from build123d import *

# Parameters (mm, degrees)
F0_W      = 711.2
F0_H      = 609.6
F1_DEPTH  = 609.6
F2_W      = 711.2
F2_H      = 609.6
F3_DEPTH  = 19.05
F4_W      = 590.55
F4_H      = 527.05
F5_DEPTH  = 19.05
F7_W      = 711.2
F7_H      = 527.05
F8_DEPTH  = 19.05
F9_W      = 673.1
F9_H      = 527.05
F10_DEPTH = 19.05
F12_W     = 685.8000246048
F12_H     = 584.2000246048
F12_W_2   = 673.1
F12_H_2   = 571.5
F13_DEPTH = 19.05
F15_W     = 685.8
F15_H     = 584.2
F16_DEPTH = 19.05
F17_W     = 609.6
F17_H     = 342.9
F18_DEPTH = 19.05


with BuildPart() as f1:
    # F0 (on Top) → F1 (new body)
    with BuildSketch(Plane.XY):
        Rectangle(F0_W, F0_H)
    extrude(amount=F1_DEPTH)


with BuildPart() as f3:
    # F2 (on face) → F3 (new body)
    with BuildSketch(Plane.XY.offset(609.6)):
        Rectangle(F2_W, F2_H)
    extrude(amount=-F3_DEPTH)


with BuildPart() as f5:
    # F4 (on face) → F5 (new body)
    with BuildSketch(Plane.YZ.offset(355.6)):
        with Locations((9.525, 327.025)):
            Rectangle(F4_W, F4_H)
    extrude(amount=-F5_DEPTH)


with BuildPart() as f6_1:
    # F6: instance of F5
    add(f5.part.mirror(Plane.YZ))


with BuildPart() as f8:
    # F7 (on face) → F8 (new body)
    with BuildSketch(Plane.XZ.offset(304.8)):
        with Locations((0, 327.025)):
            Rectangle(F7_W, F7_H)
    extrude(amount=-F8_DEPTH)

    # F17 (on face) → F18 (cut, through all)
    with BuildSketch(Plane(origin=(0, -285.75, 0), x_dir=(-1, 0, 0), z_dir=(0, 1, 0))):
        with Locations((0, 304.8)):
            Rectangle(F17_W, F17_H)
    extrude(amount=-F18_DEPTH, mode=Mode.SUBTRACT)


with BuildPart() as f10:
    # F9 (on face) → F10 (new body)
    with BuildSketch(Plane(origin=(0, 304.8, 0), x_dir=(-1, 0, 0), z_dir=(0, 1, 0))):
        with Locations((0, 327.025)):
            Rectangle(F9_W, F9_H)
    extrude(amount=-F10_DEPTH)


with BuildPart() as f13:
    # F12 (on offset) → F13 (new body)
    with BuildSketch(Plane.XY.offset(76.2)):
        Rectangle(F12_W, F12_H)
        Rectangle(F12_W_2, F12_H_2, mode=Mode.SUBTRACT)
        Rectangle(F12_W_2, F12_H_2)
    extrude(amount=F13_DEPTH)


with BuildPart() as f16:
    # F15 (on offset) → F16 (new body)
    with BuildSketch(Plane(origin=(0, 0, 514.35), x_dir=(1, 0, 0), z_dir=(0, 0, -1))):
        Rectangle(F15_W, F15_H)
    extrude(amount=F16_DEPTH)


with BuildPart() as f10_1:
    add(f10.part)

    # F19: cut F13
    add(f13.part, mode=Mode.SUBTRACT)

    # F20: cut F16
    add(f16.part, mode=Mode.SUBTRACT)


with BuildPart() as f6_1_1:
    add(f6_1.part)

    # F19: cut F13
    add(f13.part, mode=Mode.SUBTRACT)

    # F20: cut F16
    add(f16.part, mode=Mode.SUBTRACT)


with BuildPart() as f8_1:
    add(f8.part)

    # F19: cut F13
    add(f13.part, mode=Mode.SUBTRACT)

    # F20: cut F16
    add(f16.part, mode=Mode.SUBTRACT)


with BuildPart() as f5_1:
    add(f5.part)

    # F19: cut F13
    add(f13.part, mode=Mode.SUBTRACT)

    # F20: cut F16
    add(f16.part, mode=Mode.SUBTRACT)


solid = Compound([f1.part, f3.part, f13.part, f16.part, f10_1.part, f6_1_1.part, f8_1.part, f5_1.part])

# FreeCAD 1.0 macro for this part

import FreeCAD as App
import Part
import Sketcher
from FreeCAD import Vector
Q = App.Units.Quantity

doc = App.newDocument("Part")
body = doc.addObject("PartDesign::Body", "Body")

# Sketch on XY plane
sketch1 = doc.addObject("Sketcher::SketchObject", "Sketch")
body.addObject(sketch1)
sketch1.AttachmentSupport = (doc.XY_Plane, [""])
sketch1.MapMode = "FlatFace"
sketch1.addGeometry(Part.LineSegment(Vector(-355.6, 304.8, 0), Vector(-355.6, -304.8, 0)), False)
sketch1.addGeometry(Part.LineSegment(Vector(-355.6, -304.8, 0), Vector(355.6, -304.8, 0)), False)
sketch1.addGeometry(Part.LineSegment(Vector(355.6, -304.8, 0), Vector(355.6, 304.8, 0)), False)
sketch1.addGeometry(Part.LineSegment(Vector(355.6, 304.8, 0), Vector(-355.6, 304.8, 0)), False)
sketch1.addConstraint(Sketcher.Constraint("Coincident", 0, 2, 1, 1))
sketch1.addConstraint(Sketcher.Constraint("Coincident", 1, 2, 2, 1))
sketch1.addConstraint(Sketcher.Constraint("Coincident", 2, 2, 3, 1))
sketch1.addConstraint(Sketcher.Constraint("Coincident", 3, 2, 0, 1))
sketch1.addConstraint(Sketcher.Constraint("Vertical", 0))
sketch1.addConstraint(Sketcher.Constraint("Horizontal", 1))
sketch1.addConstraint(Sketcher.Constraint("Vertical", 2))
sketch1.addConstraint(Sketcher.Constraint("Horizontal", 3))
sketch1.addConstraint(Sketcher.Constraint("Symmetric", 0, 2, 2, 2, -1, 1))
sketch1.addConstraint(Sketcher.Constraint("DistanceX", 1, 1, 1, 2, Q("28 in")))
sketch1.addConstraint(Sketcher.Constraint("DistanceY", 0, 2, 0, 1, Q("24 in")))
pad1 = doc.addObject("PartDesign::Pad", "Pad")
body.addObject(pad1)
pad1.Profile = sketch1
pad1.Length = Q("24 in")
body2 = doc.addObject("PartDesign::Body", "Body001")

# Sketch on XY plane
sketch2 = doc.addObject("Sketcher::SketchObject", "Sketch001")
body2.addObject(sketch2)
sketch2.AttachmentSupport = (doc.getObject("XY_Plane001"), [""])
sketch2.MapMode = "FlatFace"
sketch2.AttachmentOffset = App.Placement(Vector(0, 0, 24 * 25.4), App.Rotation())
sketch2.addGeometry(Part.LineSegment(Vector(-355.6, 304.8, 0), Vector(-355.6, -304.8, 0)), False)
sketch2.addGeometry(Part.LineSegment(Vector(-355.6, -304.8, 0), Vector(355.6, -304.8, 0)), False)
sketch2.addGeometry(Part.LineSegment(Vector(355.6, -304.8, 0), Vector(355.6, 304.8, 0)), False)
sketch2.addGeometry(Part.LineSegment(Vector(355.6, 304.8, 0), Vector(-355.6, 304.8, 0)), False)
sketch2.addConstraint(Sketcher.Constraint("Coincident", 0, 2, 1, 1))
sketch2.addConstraint(Sketcher.Constraint("Coincident", 1, 2, 2, 1))
sketch2.addConstraint(Sketcher.Constraint("Coincident", 2, 2, 3, 1))
sketch2.addConstraint(Sketcher.Constraint("Coincident", 3, 2, 0, 1))
sketch2.addConstraint(Sketcher.Constraint("Vertical", 0))
sketch2.addConstraint(Sketcher.Constraint("Horizontal", 1))
sketch2.addConstraint(Sketcher.Constraint("Vertical", 2))
sketch2.addConstraint(Sketcher.Constraint("Horizontal", 3))
sketch2.addConstraint(Sketcher.Constraint("Symmetric", 0, 2, 2, 2, -1, 1))
sketch2.addConstraint(Sketcher.Constraint("DistanceX", 1, 1, 1, 2, Q("28 in")))
sketch2.addConstraint(Sketcher.Constraint("DistanceY", 0, 2, 0, 1, Q("24 in")))
pad2 = doc.addObject("PartDesign::Pad", "Pad001")
body2.addObject(pad2)
pad2.Profile = sketch2
pad2.Length = Q("0.75 in")
pad2.Reversed = True
body3 = doc.addObject("PartDesign::Body", "Body002")

# Sketch on YZ plane
sketch3 = doc.addObject("Sketcher::SketchObject", "Sketch002")
body3.addObject(sketch3)
sketch3.AttachmentSupport = (doc.getObject("YZ_Plane002"), [""])
sketch3.MapMode = "FlatFace"
sketch3.AttachmentOffset = App.Placement(Vector(0, 0, 14 * 25.4), App.Rotation())
sketch3.addGeometry(Part.LineSegment(Vector(-285.75, 590.55, 0), Vector(-285.75, 63.5, 0)), False)
sketch3.addGeometry(Part.LineSegment(Vector(-285.75, 63.5, 0), Vector(304.8, 63.5, 0)), False)
sketch3.addGeometry(Part.LineSegment(Vector(304.8, 63.5, 0), Vector(304.8, 590.55, 0)), False)
sketch3.addGeometry(Part.LineSegment(Vector(304.8, 590.55, 0), Vector(-285.75, 590.55, 0)), False)
sketch3.addConstraint(Sketcher.Constraint("Coincident", 0, 2, 1, 1))
sketch3.addConstraint(Sketcher.Constraint("Coincident", 1, 2, 2, 1))
sketch3.addConstraint(Sketcher.Constraint("Coincident", 2, 2, 3, 1))
sketch3.addConstraint(Sketcher.Constraint("Coincident", 3, 2, 0, 1))
sketch3.addConstraint(Sketcher.Constraint("Vertical", 0))
sketch3.addConstraint(Sketcher.Constraint("Horizontal", 1))
sketch3.addConstraint(Sketcher.Constraint("Vertical", 2))
sketch3.addConstraint(Sketcher.Constraint("Horizontal", 3))
sketch3.addConstraint(Sketcher.Constraint("DistanceX", -1, 1, 1, 2, Q("12 in")))
sketch3.addConstraint(Sketcher.Constraint("DistanceX", 1, 1, 1, 2, Q("23.25 in")))
sketch3.addConstraint(Sketcher.Constraint("DistanceY", 0, 2, 0, 1, Q("20.75 in")))
sketch3.addConstraint(Sketcher.Constraint("DistanceY", -1, 1, 0, 2, Q("2.5 in")))
pad3 = doc.addObject("PartDesign::Pad", "Pad002")
body3.addObject(pad3)
pad3.Profile = sketch3
pad3.Length = Q("0.75 in")
pad3.Reversed = True
body4 = doc.addObject("PartDesign::Body", "Body003")
doc.recompute()

mirroring = doc.addObject("Part::Mirroring", "Mirroring")
mirroring.Source = body3
mirroring.Base = Vector(0, 0, 0)
mirroring.Normal = Vector(1, 0, 0)
body4.BaseFeature = mirroring
doc.recompute()
body5 = doc.addObject("PartDesign::Body", "Body004")

# Sketch on XZ plane
sketch4 = doc.addObject("Sketcher::SketchObject", "Sketch003")
body5.addObject(sketch4)
sketch4.AttachmentSupport = (doc.getObject("XZ_Plane004"), [""])
sketch4.MapMode = "FlatFace"
sketch4.AttachmentOffset = App.Placement(Vector(0, 0, 12 * 25.4), App.Rotation())
sketch4.addGeometry(Part.LineSegment(Vector(-355.6, 590.55, 0), Vector(-355.6, 63.5, 0)), False)
sketch4.addGeometry(Part.LineSegment(Vector(-355.6, 63.5, 0), Vector(355.6, 63.5, 0)), False)
sketch4.addGeometry(Part.LineSegment(Vector(355.6, 63.5, 0), Vector(355.6, 590.55, 0)), False)
sketch4.addGeometry(Part.LineSegment(Vector(355.6, 590.55, 0), Vector(-355.6, 590.55, 0)), False)
sketch4.addConstraint(Sketcher.Constraint("Coincident", 0, 2, 1, 1))
sketch4.addConstraint(Sketcher.Constraint("Coincident", 1, 2, 2, 1))
sketch4.addConstraint(Sketcher.Constraint("Coincident", 2, 2, 3, 1))
sketch4.addConstraint(Sketcher.Constraint("Coincident", 3, 2, 0, 1))
sketch4.addConstraint(Sketcher.Constraint("Vertical", 0))
sketch4.addConstraint(Sketcher.Constraint("Horizontal", 1))
sketch4.addConstraint(Sketcher.Constraint("Vertical", 2))
sketch4.addConstraint(Sketcher.Constraint("Horizontal", 3))
sketch4.addConstraint(Sketcher.Constraint("DistanceX", 1, 1, 1, 2, Q("28 in")))
sketch4.addConstraint(Sketcher.Constraint("DistanceX", 0, 2, -1, 1, Q("14 in")))
sketch4.addConstraint(Sketcher.Constraint("DistanceY", 0, 2, 0, 1, Q("20.75 in")))
sketch4.addConstraint(Sketcher.Constraint("DistanceY", -1, 1, 0, 2, Q("2.5 in")))
pad4 = doc.addObject("PartDesign::Pad", "Pad003")
body5.addObject(pad4)
pad4.Profile = sketch4
pad4.Length = Q("0.75 in")
pad4.Reversed = True

# Sketch on XZ plane
sketch5 = doc.addObject("Sketcher::SketchObject", "Sketch004")
body5.addObject(sketch5)
sketch5.AttachmentSupport = (doc.getObject("XZ_Plane004"), [""])
sketch5.MapMode = "FlatFace"
sketch5.AttachmentOffset = App.Placement(Vector(0, 0, 11.25 * 25.4), App.Rotation())
sketch5.addGeometry(Part.LineSegment(Vector(304.8, 476.25, 0), Vector(304.8, 133.35, 0)), False)
sketch5.addGeometry(Part.LineSegment(Vector(304.8, 133.35, 0), Vector(-304.8, 133.35, 0)), False)
sketch5.addGeometry(Part.LineSegment(Vector(-304.8, 133.35, 0), Vector(-304.8, 476.25, 0)), False)
sketch5.addGeometry(Part.LineSegment(Vector(-304.8, 476.25, 0), Vector(304.8, 476.25, 0)), False)
sketch5.addConstraint(Sketcher.Constraint("Coincident", 0, 2, 1, 1))
sketch5.addConstraint(Sketcher.Constraint("Coincident", 1, 2, 2, 1))
sketch5.addConstraint(Sketcher.Constraint("Coincident", 2, 2, 3, 1))
sketch5.addConstraint(Sketcher.Constraint("Coincident", 3, 2, 0, 1))
sketch5.addConstraint(Sketcher.Constraint("Vertical", 0))
sketch5.addConstraint(Sketcher.Constraint("Horizontal", 1))
sketch5.addConstraint(Sketcher.Constraint("Vertical", 2))
sketch5.addConstraint(Sketcher.Constraint("Horizontal", 3))
sketch5.addConstraint(Sketcher.Constraint("DistanceX", 1, 2, 1, 1, Q("24 in")))
sketch5.addConstraint(Sketcher.Constraint("DistanceY", 0, 2, 0, 1, Q("13.5 in")))
sketch5.addConstraint(Sketcher.Constraint("DistanceX", -1, 1, 0, 2, Q("12 in")))
sketch5.addConstraint(Sketcher.Constraint("DistanceY", -1, 1, 0, 2, Q("5.25 in")))
pocket1 = doc.addObject("PartDesign::Pocket", "Pocket")
body5.addObject(pocket1)
pocket1.Profile = sketch5
pocket1.Type = "ThroughAll"
pocket1.Reversed = True
body6 = doc.addObject("PartDesign::Body", "Body005")

# Sketch on XZ plane
sketch6 = doc.addObject("Sketcher::SketchObject", "Sketch005")
body6.addObject(sketch6)
sketch6.AttachmentSupport = (doc.getObject("XZ_Plane005"), [""])
sketch6.MapMode = "FlatFace"
sketch6.AttachmentOffset = App.Placement(Vector(0, 0, -12 * 25.4), App.Rotation())
sketch6.addGeometry(Part.LineSegment(Vector(336.55, 590.55, 0), Vector(336.55, 63.5, 0)), False)
sketch6.addGeometry(Part.LineSegment(Vector(336.55, 63.5, 0), Vector(-336.55, 63.5, 0)), False)
sketch6.addGeometry(Part.LineSegment(Vector(-336.55, 63.5, 0), Vector(-336.55, 590.55, 0)), False)
sketch6.addGeometry(Part.LineSegment(Vector(-336.55, 590.55, 0), Vector(336.55, 590.55, 0)), False)
sketch6.addConstraint(Sketcher.Constraint("Coincident", 0, 2, 1, 1))
sketch6.addConstraint(Sketcher.Constraint("Coincident", 1, 2, 2, 1))
sketch6.addConstraint(Sketcher.Constraint("Coincident", 2, 2, 3, 1))
sketch6.addConstraint(Sketcher.Constraint("Coincident", 3, 2, 0, 1))
sketch6.addConstraint(Sketcher.Constraint("Vertical", 0))
sketch6.addConstraint(Sketcher.Constraint("Horizontal", 1))
sketch6.addConstraint(Sketcher.Constraint("Vertical", 2))
sketch6.addConstraint(Sketcher.Constraint("Horizontal", 3))
sketch6.addConstraint(Sketcher.Constraint("DistanceX", 1, 2, 1, 1, Q("26.5 in")))
sketch6.addConstraint(Sketcher.Constraint("DistanceY", 0, 2, 0, 1, Q("20.75 in")))
sketch6.addConstraint(Sketcher.Constraint("DistanceY", -1, 1, 0, 2, Q("2.5 in")))
sketch6.addConstraint(Sketcher.Constraint("DistanceX", -1, 1, 0, 2, Q("13.25 in")))
pad5 = doc.addObject("PartDesign::Pad", "Pad004")
body6.addObject(pad5)
pad5.Profile = sketch6
pad5.Length = Q("0.75 in")
body7 = doc.addObject("PartDesign::Body", "Body006")

# Sketch on XY plane
sketch7 = doc.addObject("Sketcher::SketchObject", "Sketch006")
body7.addObject(sketch7)
sketch7.AttachmentSupport = (doc.getObject("XY_Plane006"), [""])
sketch7.MapMode = "FlatFace"
sketch7.AttachmentOffset = App.Placement(Vector(0, 0, 3 * 25.4), App.Rotation())
sketch7.addGeometry(Part.LineSegment(Vector(-342.900012, 292.100012, 0), Vector(-342.900012, -292.100012, 0)), False)
sketch7.addGeometry(Part.LineSegment(Vector(-342.900012, -292.100012, 0), Vector(342.900012, -292.100012, 0)), False)
sketch7.addGeometry(Part.LineSegment(Vector(342.900012, -292.100012, 0), Vector(342.900012, 292.100012, 0)), False)
sketch7.addGeometry(Part.LineSegment(Vector(342.900012, 292.100012, 0), Vector(-342.900012, 292.100012, 0)), False)
sketch7.addConstraint(Sketcher.Constraint("Coincident", 0, 2, 1, 1))
sketch7.addConstraint(Sketcher.Constraint("Coincident", 1, 2, 2, 1))
sketch7.addConstraint(Sketcher.Constraint("Coincident", 2, 2, 3, 1))
sketch7.addConstraint(Sketcher.Constraint("Coincident", 3, 2, 0, 1))
sketch7.addConstraint(Sketcher.Constraint("Vertical", 0))
sketch7.addConstraint(Sketcher.Constraint("Horizontal", 1))
sketch7.addConstraint(Sketcher.Constraint("Vertical", 2))
sketch7.addConstraint(Sketcher.Constraint("Horizontal", 3))
sketch7.addConstraint(Sketcher.Constraint("Symmetric", 0, 2, 2, 2, -1, 1))
sketch7.addConstraint(Sketcher.Constraint("DistanceX", 1, 1, 1, 2, Q("685.800025 mm")))
sketch7.addConstraint(Sketcher.Constraint("DistanceY", 0, 2, 0, 1, Q("584.200025 mm")))
pad6 = doc.addObject("PartDesign::Pad", "Pad005")
body7.addObject(pad6)
pad6.Profile = sketch7
pad6.Length = Q("0.75 in")
body8 = doc.addObject("PartDesign::Body", "Body007")

# Sketch on XY plane
sketch8 = doc.addObject("Sketcher::SketchObject", "Sketch007")
body8.addObject(sketch8)
sketch8.AttachmentSupport = (doc.getObject("XY_Plane007"), [""])
sketch8.MapMode = "FlatFace"
sketch8.AttachmentOffset = App.Placement(Vector(0, 0, 20.25 * 25.4), App.Rotation())
sketch8.addGeometry(Part.LineSegment(Vector(-342.9, -292.1, 0), Vector(-342.9, 292.1, 0)), False)
sketch8.addGeometry(Part.LineSegment(Vector(-342.9, 292.1, 0), Vector(342.9, 292.1, 0)), False)
sketch8.addGeometry(Part.LineSegment(Vector(342.9, 292.1, 0), Vector(342.9, -292.1, 0)), False)
sketch8.addGeometry(Part.LineSegment(Vector(342.9, -292.1, 0), Vector(-342.9, -292.1, 0)), False)
sketch8.addConstraint(Sketcher.Constraint("Coincident", 0, 2, 1, 1))
sketch8.addConstraint(Sketcher.Constraint("Coincident", 1, 2, 2, 1))
sketch8.addConstraint(Sketcher.Constraint("Coincident", 2, 2, 3, 1))
sketch8.addConstraint(Sketcher.Constraint("Coincident", 3, 2, 0, 1))
sketch8.addConstraint(Sketcher.Constraint("Vertical", 0))
sketch8.addConstraint(Sketcher.Constraint("Horizontal", 1))
sketch8.addConstraint(Sketcher.Constraint("Vertical", 2))
sketch8.addConstraint(Sketcher.Constraint("Horizontal", 3))
sketch8.addConstraint(Sketcher.Constraint("Symmetric", 0, 2, 2, 2, -1, 1))
sketch8.addConstraint(Sketcher.Constraint("DistanceX", 1, 1, 1, 2, Q("27 in")))
sketch8.addConstraint(Sketcher.Constraint("DistanceY", 0, 1, 0, 2, Q("23 in")))
pad7 = doc.addObject("PartDesign::Pad", "Pad006")
body8.addObject(pad7)
pad7.Profile = sketch8
pad7.Length = Q("0.75 in")
pad7.Reversed = True
doc.recompute()

body9 = doc.addObject("PartDesign::Body", "Body008")
body9.BaseFeature = body7
boolean = doc.addObject("PartDesign::Boolean", "Boolean")
body6.addObject(boolean)
boolean.Type = "Cut"
boolean.addObjects([body9])
doc.recompute()

body10 = doc.addObject("PartDesign::Body", "Body009")
body10.BaseFeature = body8
boolean2 = doc.addObject("PartDesign::Boolean", "Boolean001")
body6.addObject(boolean2)
boolean2.Type = "Cut"
boolean2.addObjects([body10])
doc.recompute()

body11 = doc.addObject("PartDesign::Body", "Body010")
body11.BaseFeature = body7
boolean3 = doc.addObject("PartDesign::Boolean", "Boolean002")
body4.addObject(boolean3)
boolean3.Type = "Cut"
boolean3.addObjects([body11])
doc.recompute()

body12 = doc.addObject("PartDesign::Body", "Body011")
body12.BaseFeature = body8
boolean4 = doc.addObject("PartDesign::Boolean", "Boolean003")
body4.addObject(boolean4)
boolean4.Type = "Cut"
boolean4.addObjects([body12])
doc.recompute()

body13 = doc.addObject("PartDesign::Body", "Body012")
body13.BaseFeature = body7
boolean5 = doc.addObject("PartDesign::Boolean", "Boolean004")
body5.addObject(boolean5)
boolean5.Type = "Cut"
boolean5.addObjects([body13])
doc.recompute()

body14 = doc.addObject("PartDesign::Body", "Body013")
body14.BaseFeature = body8
boolean6 = doc.addObject("PartDesign::Boolean", "Boolean005")
body5.addObject(boolean6)
boolean6.Type = "Cut"
boolean6.addObjects([body14])
doc.recompute()

body15 = doc.addObject("PartDesign::Body", "Body014")
body15.BaseFeature = body7
boolean7 = doc.addObject("PartDesign::Boolean", "Boolean006")
body3.addObject(boolean7)
boolean7.Type = "Cut"
boolean7.addObjects([body15])
doc.recompute()

body16 = doc.addObject("PartDesign::Body", "Body015")
body16.BaseFeature = body8
boolean8 = doc.addObject("PartDesign::Boolean", "Boolean007")
body3.addObject(boolean8)
boolean8.Type = "Cut"
boolean8.addObjects([body16])
doc.recompute()

doc.recompute()
